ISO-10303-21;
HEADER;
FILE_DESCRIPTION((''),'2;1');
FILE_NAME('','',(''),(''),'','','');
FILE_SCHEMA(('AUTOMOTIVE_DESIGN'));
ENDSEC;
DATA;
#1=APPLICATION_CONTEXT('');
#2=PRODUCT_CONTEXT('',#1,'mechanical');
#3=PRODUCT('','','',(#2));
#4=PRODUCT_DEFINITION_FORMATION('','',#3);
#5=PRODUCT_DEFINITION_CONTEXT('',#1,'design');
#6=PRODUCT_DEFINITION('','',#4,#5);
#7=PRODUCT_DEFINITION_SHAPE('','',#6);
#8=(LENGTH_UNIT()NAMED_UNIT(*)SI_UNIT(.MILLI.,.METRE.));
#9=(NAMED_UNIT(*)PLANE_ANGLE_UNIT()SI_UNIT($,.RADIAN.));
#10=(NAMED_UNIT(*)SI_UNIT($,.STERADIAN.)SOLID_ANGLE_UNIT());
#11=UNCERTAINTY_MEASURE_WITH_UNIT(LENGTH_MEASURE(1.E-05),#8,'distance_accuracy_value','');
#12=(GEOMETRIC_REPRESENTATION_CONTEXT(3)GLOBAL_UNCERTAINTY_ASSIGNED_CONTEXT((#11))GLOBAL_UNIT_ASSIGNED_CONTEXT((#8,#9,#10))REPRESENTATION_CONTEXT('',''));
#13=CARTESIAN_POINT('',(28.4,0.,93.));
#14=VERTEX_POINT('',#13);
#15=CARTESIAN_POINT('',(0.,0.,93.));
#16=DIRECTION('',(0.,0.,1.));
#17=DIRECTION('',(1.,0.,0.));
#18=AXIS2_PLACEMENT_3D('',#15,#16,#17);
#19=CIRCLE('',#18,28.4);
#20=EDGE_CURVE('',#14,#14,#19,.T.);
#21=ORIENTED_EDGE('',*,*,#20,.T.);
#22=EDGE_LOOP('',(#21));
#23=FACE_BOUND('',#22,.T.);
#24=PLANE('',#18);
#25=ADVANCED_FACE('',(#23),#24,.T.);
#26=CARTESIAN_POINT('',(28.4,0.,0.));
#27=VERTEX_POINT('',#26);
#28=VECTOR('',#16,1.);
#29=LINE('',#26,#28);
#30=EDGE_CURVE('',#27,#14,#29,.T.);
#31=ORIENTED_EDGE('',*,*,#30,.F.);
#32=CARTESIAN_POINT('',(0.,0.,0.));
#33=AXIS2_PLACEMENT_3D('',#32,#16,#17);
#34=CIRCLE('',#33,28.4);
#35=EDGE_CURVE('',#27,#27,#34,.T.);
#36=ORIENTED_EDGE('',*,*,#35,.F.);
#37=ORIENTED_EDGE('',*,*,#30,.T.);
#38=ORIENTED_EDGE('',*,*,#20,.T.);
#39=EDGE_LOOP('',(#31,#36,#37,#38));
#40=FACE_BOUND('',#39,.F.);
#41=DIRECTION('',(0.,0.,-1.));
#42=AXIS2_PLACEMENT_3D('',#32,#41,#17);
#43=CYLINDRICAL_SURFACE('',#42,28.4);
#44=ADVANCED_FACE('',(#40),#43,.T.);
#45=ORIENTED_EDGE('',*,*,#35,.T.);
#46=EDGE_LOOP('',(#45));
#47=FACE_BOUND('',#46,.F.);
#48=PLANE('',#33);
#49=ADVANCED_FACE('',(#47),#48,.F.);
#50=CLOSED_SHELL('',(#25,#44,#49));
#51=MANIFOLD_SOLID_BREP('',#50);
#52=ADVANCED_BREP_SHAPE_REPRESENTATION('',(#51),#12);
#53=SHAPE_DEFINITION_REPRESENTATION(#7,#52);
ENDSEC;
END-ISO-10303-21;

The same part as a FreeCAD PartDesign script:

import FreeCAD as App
import Part
import Sketcher

V = App.Vector
Q = App.Units.Quantity

doc = App.newDocument("Part")
body = doc.addObject("PartDesign::Body", "Body")

sketch1 = doc.addObject("Sketcher::SketchObject", "Sketch")
body.addObject(sketch1)
sketch1.AttachmentSupport = (doc.XY_Plane, [""])
sketch1.MapMode = "FlatFace"
sketch1.addGeometry(Part.Circle(V(0, 0, 0), V(0, 0, 1), 28.4), False)
sketch1.addConstraint([
    Sketcher.Constraint("Coincident", 0, 3, -1, 1),
    Sketcher.Constraint("Diameter", 0, Q("56.8 mm")),
])
pad1 = doc.addObject("PartDesign::Pad", "Pad")
body.addObject(pad1)
pad1.Profile = sketch1
pad1.Length = 93

doc.recompute()
